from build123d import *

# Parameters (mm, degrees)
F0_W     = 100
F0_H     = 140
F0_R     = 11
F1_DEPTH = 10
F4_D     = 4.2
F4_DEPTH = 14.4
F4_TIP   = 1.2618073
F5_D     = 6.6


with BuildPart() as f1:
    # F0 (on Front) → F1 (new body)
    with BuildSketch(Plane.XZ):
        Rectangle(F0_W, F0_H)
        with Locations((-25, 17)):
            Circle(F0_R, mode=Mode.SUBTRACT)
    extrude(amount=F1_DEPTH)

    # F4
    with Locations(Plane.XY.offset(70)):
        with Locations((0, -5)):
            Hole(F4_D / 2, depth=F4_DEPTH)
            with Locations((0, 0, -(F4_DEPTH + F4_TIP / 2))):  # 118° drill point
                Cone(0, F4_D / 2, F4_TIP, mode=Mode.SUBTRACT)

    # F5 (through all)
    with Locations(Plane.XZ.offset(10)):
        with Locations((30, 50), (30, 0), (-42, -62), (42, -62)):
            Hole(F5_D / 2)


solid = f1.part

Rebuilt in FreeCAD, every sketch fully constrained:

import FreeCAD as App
import Part
import Sketcher

doc = App.newDocument("Part")
body = doc.addObject("PartDesign::Body", "Body")

# Sketch on XZ plane
sketch1 = body.newObject("Sketcher::SketchObject", "Sketch")
sketch1.AttachmentSupport = (doc.getObject("XZ_Plane"), [""])
sketch1.MapMode = "FlatFace"
sketch1.addGeometry(Part.LineSegment(App.Vector(-50, 70, 0), App.Vector(-50, -70, 0)), False)
sketch1.addGeometry(Part.LineSegment(App.Vector(-50, -70, 0), App.Vector(50, -70, 0)), False)
sketch1.addGeometry(Part.LineSegment(App.Vector(50, -70, 0), App.Vector(50, 70, 0)), False)
sketch1.addGeometry(Part.LineSegment(App.Vector(50, 70, 0), App.Vector(-50, 70, 0)), False)
sketch1.addGeometry(Part.Circle(App.Vector(-25, 17, 0), App.Vector(0, 0, 1), 11), False)
sketch1.addConstraint(Sketcher.Constraint("Coincident", 0, 2, 1, 1))
sketch1.addConstraint(Sketcher.Constraint("Coincident", 1, 2, 2, 1))
sketch1.addConstraint(Sketcher.Constraint("Coincident", 2, 2, 3, 1))
sketch1.addConstraint(Sketcher.Constraint("Coincident", 3, 2, 0, 1))
sketch1.addConstraint(Sketcher.Constraint("Vertical", 0))
sketch1.addConstraint(Sketcher.Constraint("Horizontal", 1))
sketch1.addConstraint(Sketcher.Constraint("Vertical", 2))
sketch1.addConstraint(Sketcher.Constraint("Horizontal", 3))
sketch1.addConstraint(Sketcher.Constraint("Symmetric", 0, 2, 2, 2, -1, 1))
sketch1.addConstraint(Sketcher.Constraint("Diameter", 4, 22.0))
sketch1.addConstraint(Sketcher.Constraint("DistanceX", 1, 1, 1, 2, 100.0))
sketch1.addConstraint(Sketcher.Constraint("DistanceY", 0, 2, 0, 1, 140.0))
sketch1.addConstraint(Sketcher.Constraint("DistanceX", 4, 3, -1, 1, 25.0))
sketch1.addConstraint(Sketcher.Constraint("DistanceY", -1, 1, 4, 3, 17.0))
pad1 = body.newObject("PartDesign::Pad", "Pad")
pad1.Profile = sketch1
pad1.Length = 10

# Sketch on XY plane
sketch2 = body.newObject("Sketcher::SketchObject", "Sketch001")
sketch2.AttachmentSupport = (doc.getObject("XY_Plane"), [""])
sketch2.MapMode = "FlatFace"
sketch2.AttachmentOffset = App.Placement(App.Vector(0, 0, 70), App.Rotation())
sketch2.addGeometry(Part.Circle(App.Vector(0, -5, 0), App.Vector(0, 0, 1), 2.1), False)
sketch2.addConstraint(Sketcher.Constraint("PointOnObject", 0, 3, -2))
sketch2.addConstraint(Sketcher.Constraint("Diameter", 0, 4.2))
sketch2.addConstraint(Sketcher.Constraint("DistanceY", 0, 3, -1, 1, 5.0))
doc.recompute()
hole = body.newObject("PartDesign::Hole", "Hole")
hole.Profile = sketch2
hole.ThreadType = "None"
hole.Diameter = 4.2
hole.DepthType = "Dimension"
hole.Depth = 14.4
hole.DrillPoint = "Angled"
hole.DrillPointAngle = 118

# Sketch on XZ plane
sketch3 = body.newObject("Sketcher::SketchObject", "Sketch002")
sketch3.AttachmentSupport = (doc.getObject("XZ_Plane"), [""])
sketch3.MapMode = "FlatFace"
sketch3.AttachmentOffset = App.Placement(App.Vector(0, 0, 10), App.Rotation())
sketch3.addGeometry(Part.Circle(App.Vector(30, 50, 0), App.Vector(0, 0, 1), 3.3), False)
sketch3.addGeometry(Part.Circle(App.Vector(30, 0, 0), App.Vector(0, 0, 1), 3.3), False)
sketch3.addGeometry(Part.Circle(App.Vector(-42, -62, 0), App.Vector(0, 0, 1), 3.3), False)
sketch3.addGeometry(Part.Circle(App.Vector(42, -62, 0), App.Vector(0, 0, 1), 3.3), False)
sketch3.addConstraint(Sketcher.Constraint("Equal", 0, 1))
sketch3.addConstraint(Sketcher.Constraint("Equal", 1, 2))
sketch3.addConstraint(Sketcher.Constraint("Equal", 2, 3))
sketch3.addConstraint(Sketcher.Constraint("Symmetric", 2, 3, 3, 3, -2))
sketch3.addConstraint(Sketcher.Constraint("PointOnObject", 1, 3, -1))
sketch3.addConstraint(Sketcher.Constraint("Vertical", 0, 3, 1, 3))
sketch3.addConstraint(Sketcher.Constraint("Diameter", 0, 6.6))
sketch3.addConstraint(Sketcher.Constraint("DistanceX", -1, 1, 0, 3, 30.0))
sketch3.addConstraint(Sketcher.Constraint("DistanceY", -1, 1, 0, 3, 50.0))
sketch3.addConstraint(Sketcher.Constraint("DistanceX", 2, 3, -1, 1, 42.0))
sketch3.addConstraint(Sketcher.Constraint("DistanceY", 2, 3, -1, 1, 62.0))
doc.recompute()
hole2 = body.newObject("PartDesign::Hole", "Hole001")
hole2.Profile = sketch3
hole2.ThreadType = "None"
hole2.Diameter = 6.6
hole2.DepthType = "ThroughAll"

doc.recompute()
